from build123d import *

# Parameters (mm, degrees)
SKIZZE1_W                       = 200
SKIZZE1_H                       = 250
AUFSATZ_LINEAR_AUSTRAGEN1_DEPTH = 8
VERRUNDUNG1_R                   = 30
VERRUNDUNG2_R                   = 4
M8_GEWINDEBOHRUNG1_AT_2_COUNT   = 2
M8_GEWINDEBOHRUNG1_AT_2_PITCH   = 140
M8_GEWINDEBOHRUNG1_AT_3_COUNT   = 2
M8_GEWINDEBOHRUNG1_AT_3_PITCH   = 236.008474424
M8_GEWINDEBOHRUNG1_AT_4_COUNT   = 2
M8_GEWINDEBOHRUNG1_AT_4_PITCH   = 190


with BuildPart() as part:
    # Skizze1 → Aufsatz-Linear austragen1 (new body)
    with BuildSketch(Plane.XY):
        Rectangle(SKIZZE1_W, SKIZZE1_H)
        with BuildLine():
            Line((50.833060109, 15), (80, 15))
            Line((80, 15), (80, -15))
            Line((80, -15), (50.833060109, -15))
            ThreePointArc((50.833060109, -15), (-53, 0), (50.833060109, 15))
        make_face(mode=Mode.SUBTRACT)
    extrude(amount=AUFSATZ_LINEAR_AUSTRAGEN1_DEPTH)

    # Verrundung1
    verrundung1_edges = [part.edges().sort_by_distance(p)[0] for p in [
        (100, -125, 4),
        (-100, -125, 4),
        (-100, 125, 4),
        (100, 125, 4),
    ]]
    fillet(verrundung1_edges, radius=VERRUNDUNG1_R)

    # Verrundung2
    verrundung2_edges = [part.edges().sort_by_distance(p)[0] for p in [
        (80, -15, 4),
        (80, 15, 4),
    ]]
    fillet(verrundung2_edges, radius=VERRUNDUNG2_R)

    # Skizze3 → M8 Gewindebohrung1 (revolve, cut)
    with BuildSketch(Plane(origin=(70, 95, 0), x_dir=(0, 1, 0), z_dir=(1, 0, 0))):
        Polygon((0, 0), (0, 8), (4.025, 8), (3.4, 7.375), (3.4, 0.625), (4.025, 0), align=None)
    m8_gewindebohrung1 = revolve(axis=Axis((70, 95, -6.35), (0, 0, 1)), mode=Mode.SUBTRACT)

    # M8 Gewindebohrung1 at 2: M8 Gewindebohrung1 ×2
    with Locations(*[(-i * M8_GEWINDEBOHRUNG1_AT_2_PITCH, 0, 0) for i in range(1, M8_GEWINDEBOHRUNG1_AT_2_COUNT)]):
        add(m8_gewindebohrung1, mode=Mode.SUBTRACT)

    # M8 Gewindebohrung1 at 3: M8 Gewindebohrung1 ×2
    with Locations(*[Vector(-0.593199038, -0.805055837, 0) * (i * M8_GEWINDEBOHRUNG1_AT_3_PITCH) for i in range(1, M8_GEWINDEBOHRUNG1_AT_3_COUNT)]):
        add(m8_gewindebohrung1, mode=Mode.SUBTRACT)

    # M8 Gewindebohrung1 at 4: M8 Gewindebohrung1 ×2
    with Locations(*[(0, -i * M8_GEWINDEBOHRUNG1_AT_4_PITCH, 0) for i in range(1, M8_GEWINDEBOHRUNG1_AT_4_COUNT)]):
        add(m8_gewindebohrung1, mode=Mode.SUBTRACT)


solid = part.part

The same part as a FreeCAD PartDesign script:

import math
import FreeCAD as App
import Part
import Sketcher

V = App.Vector


def edges_at(feature, points):
    """Names of the edges that pass closest to the given points."""
    edges = feature.Shape.Edges
    near = lambda p: min(range(len(edges)), key=lambda i: edges[i].distToShape(Part.Vertex(*p))[0])
    return sorted({f"Edge{near(p) + 1}" for p in points})


def add_polygon(sketch, points):
    """Adds a closed chain of lines whose ends are joined by coincident constraints."""
    first, n = sketch.GeometryCount, len(points)
    for a, b in zip(points, points[1:] + points[:1]):
        sketch.addGeometry(Part.LineSegment(App.Vector(*a, 0), App.Vector(*b, 0)), False)
    for i in range(n):
        sketch.addConstraint(Sketcher.Constraint("Coincident", first + i, 2, first + (i + 1) % n, 1))

doc = App.newDocument("Part")
body = doc.addObject("PartDesign::Body", "Body")

# Sketch on XY plane
sketch1 = body.newObject("Sketcher::SketchObject", "Sketch")
sketch1.AttachmentSupport = (doc.getObject("XY_Plane"), [""])
sketch1.MapMode = "FlatFace"
add_polygon(sketch1, [(-100, 125), (-100, -125), (100, -125), (100, 125)])  # lines 0-3
sketch1.addGeometry(Part.ArcOfCircle(Part.Circle(V(0, 0, 0), V(0, 0, 1), 53), math.radians(16), math.radians(344)), False)  # 4
sketch1.addGeometry(Part.LineSegment(V(51, 15, 0), V(80, 15, 0)), False)  # 5
sketch1.addGeometry(Part.LineSegment(V(80, 15, 0), V(80, -15, 0)), False)  # 6
sketch1.addGeometry(Part.LineSegment(V(80, -15, 0), V(51, -15, 0)), False)  # 7
sketch1.addConstraint(Sketcher.Constraint("Coincident", 4, 1, 5, 1))
sketch1.addConstraint(Sketcher.Constraint("Coincident", 5, 2, 6, 1))
sketch1.addConstraint(Sketcher.Constraint("Coincident", 6, 2, 7, 1))
sketch1.addConstraint(Sketcher.Constraint("Coincident", 7, 2, 4, 2))
sketch1.addConstraint(Sketcher.Constraint("Vertical", 0))
sketch1.addConstraint(Sketcher.Constraint("Horizontal", 1))
sketch1.addConstraint(Sketcher.Constraint("Vertical", 2))
sketch1.addConstraint(Sketcher.Constraint("Horizontal", 3))
sketch1.addConstraint(Sketcher.Constraint("Horizontal", 5))
sketch1.addConstraint(Sketcher.Constraint("Vertical", 6))
sketch1.addConstraint(Sketcher.Constraint("Horizontal", 7))
sketch1.addConstraint(Sketcher.Constraint("Coincident", 4, 3, -1, 1))
sketch1.addConstraint(Sketcher.Constraint("Symmetric", 0, 2, 2, 2, -1, 1))
sketch1.addConstraint(Sketcher.Constraint("Vertical", 4, 1, 7, 2))
sketch1.addConstraint(Sketcher.Constraint("Radius", 4, 53.0))
sketch1.addConstraint(Sketcher.Constraint("DistanceX", 1, 1, 1, 2, 200.0))
sketch1.addConstraint(Sketcher.Constraint("DistanceY", 0, 2, 0, 1, 250.0))
sketch1.addConstraint(Sketcher.Constraint("DistanceY", 6, 2, 6, 1, 30.0))
sketch1.addConstraint(Sketcher.Constraint("DistanceX", -1, 1, 5, 2, 80.0))
pad1 = body.newObject("PartDesign::Pad", "Pad")
pad1.Profile = sketch1
pad1.Length = 8
doc.recompute()

fillet = body.newObject("PartDesign::Fillet", "Fillet")
fillet.Base = (pad1, edges_at(pad1, [
    (100, -125, 4),
    (-100, -125, 4),
    (-100, 125, 4),
    (100, 125, 4),
]))
fillet.Radius = 30
doc.recompute()

fillet2 = body.newObject("PartDesign::Fillet", "Fillet001")
fillet2.Base = (fillet, edges_at(fillet, [(80, -15, 4), (80, 15, 4)]))
fillet2.Radius = 4

# Sketch on YZ plane
sketch2 = body.newObject("Sketcher::SketchObject", "Sketch001")
sketch2.AttachmentSupport = (doc.getObject("YZ_Plane"), [""])
sketch2.MapMode = "FlatFace"
sketch2.AttachmentOffset = App.Placement(V(0, 0, 70), App.Rotation())
add_polygon(sketch2, [(95, 8), (95, 0), (99, 0), (98.4, 0.6), (98.4, 7.4), (99, 8)])  # lines 0-5
sketch2.addGeometry(Part.LineSegment(V(95, 0, 0), V(95, 8, 0)), True)  # axis
sketch2.addConstraint(Sketcher.Constraint("Vertical", 0))
sketch2.addConstraint(Sketcher.Constraint("Horizontal", 1))
sketch2.addConstraint(Sketcher.Constraint("Vertical", 3))
sketch2.addConstraint(Sketcher.Constraint("Horizontal", 5))
sketch2.addConstraint(Sketcher.Constraint("Vertical", 6))
sketch2.addConstraint(Sketcher.Constraint("Coincident", 6, 1, 0, 2))
sketch2.addConstraint(Sketcher.Constraint("PointOnObject", 0, 2, -1))
sketch2.addConstraint(Sketcher.Constraint("Perpendicular", 2, 4))
sketch2.addConstraint(Sketcher.Constraint("Horizontal", 4, 2, 6, 2))
sketch2.addConstraint(Sketcher.Constraint("Vertical", 1, 2, 4, 2))
sketch2.addConstraint(Sketcher.Constraint("Equal", 2, 4))
sketch2.addConstraint(Sketcher.Constraint("DistanceY", 0, 2, 0, 1, 8.0))
sketch2.addConstraint(Sketcher.Constraint("DistanceX", -1, 1, 0, 2, 95.0))
sketch2.addConstraint(Sketcher.Constraint("DistanceY", 3, 1, 3, 2, 6.75))
sketch2.addConstraint(Sketcher.Constraint("DistanceX", -1, 1, 2, 2, 98.4))
groove = body.newObject("PartDesign::Groove", "Groove")
groove.Profile = sketch2
groove.ReferenceAxis = (sketch2, ["Axis0"])
groove.Angle = 360
doc.recompute()

linearpattern = body.newObject("PartDesign::LinearPattern", "LinearPattern")
linearpattern.Originals = [groove]
linearpattern.Direction = (doc.getObject("X_Axis"), [""])
linearpattern.Mode = "offset"
linearpattern.Offset = 140
linearpattern.Occurrences = 2
linearpattern.Reversed = True
body.Tip = linearpattern
doc.recompute()

datumline = body.newObject("PartDesign::Line", "DatumLine")
datumline.Placement = App.Placement(V(0, 0, 0), App.Rotation(V(0, 0, 1), V(-0.593199038, -0.805055837, 0)))
linearpattern2 = body.newObject("PartDesign::LinearPattern", "LinearPattern001")
linearpattern2.Originals = [groove]
linearpattern2.Direction = (datumline, [""])
linearpattern2.Mode = "offset"
linearpattern2.Offset = 236.008474
linearpattern2.Occurrences = 2
body.Tip = linearpattern2
doc.recompute()

linearpattern3 = body.newObject("PartDesign::LinearPattern", "LinearPattern002")
linearpattern3.Originals = [groove]
linearpattern3.Direction = (doc.getObject("Y_Axis"), [""])
linearpattern3.Mode = "offset"
linearpattern3.Offset = 190
linearpattern3.Occurrences = 2
linearpattern3.Reversed = True
body.Tip = linearpattern3

doc.recompute()
